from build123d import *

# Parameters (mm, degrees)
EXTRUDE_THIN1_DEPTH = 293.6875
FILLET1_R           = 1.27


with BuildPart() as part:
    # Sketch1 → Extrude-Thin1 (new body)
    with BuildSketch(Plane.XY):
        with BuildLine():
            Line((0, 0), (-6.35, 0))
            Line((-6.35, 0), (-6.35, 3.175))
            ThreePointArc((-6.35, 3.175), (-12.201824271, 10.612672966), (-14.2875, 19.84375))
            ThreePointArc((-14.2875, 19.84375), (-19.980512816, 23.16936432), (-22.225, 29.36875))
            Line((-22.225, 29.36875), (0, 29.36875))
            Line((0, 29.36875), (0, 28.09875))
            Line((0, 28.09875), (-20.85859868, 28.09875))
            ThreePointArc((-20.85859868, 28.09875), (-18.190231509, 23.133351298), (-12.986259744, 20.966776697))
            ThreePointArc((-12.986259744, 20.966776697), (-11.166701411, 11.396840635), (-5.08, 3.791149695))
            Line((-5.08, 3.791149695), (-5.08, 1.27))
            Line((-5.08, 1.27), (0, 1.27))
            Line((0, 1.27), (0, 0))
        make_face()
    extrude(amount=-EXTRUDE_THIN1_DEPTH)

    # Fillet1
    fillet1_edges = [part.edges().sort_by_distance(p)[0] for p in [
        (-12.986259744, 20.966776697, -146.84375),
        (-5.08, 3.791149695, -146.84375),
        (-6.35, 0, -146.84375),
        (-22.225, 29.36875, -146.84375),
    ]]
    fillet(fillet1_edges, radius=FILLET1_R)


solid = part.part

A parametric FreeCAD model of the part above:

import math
import FreeCAD as App
import Part
import Sketcher
from FreeCAD import Vector
Q = App.Units.Quantity


def edges_at(feature, points):
    """Names of the edges that pass closest to the given points."""
    edges = feature.Shape.Edges
    near = lambda p: min(range(len(edges)), key=lambda i: edges[i].distToShape(Part.Vertex(*p))[0])
    return sorted({f"Edge{near(p) + 1}" for p in points})

doc = App.newDocument("Part")
params = doc.addObject("Spreadsheet::Sheet", "Params")
for row, (alias, value) in enumerate([
    ("sketch1_width", "0.2 in"),
    ("sketch1_width2", "0.25 in"),
    ("sketch1_height", "0.05 in"),
    ("sketch1_width3", "0.875 in"),
    ("sketch1_height2", "0.125 in"),
    ("pad1_length", "11.5625 in"),
    ("fillet_radius", "0.05 in"),
], start=1):
    params.set(f"A{row}", alias)
    params.set(f"B{row}", "=" + value)
    params.setAlias(f"B{row}", alias)

body = doc.addObject("PartDesign::Body", "Body")

# Sketch on XY plane
sketch1 = body.newObject("Sketcher::SketchObject", "Sketch")
sketch1.AttachmentSupport = (doc.getObject("XY_Plane"), [""])
sketch1.MapMode = "FlatFace"
sketch1.addGeometry([
    Part.LineSegment(Vector(-6.3, 0, 0), Vector(0, 0, 0)),  # 0
    Part.LineSegment(Vector(0, 0, 0), Vector(0, 1.3, 0)),  # 1
    Part.LineSegment(Vector(0, 1.3, 0), Vector(-5.1, 1.3, 0)),  # 2
    Part.LineSegment(Vector(-5.1, 1.3, 0), Vector(-5.1, 3.8, 0)),  # 3
    Part.ArcOfCircle(Part.Circle(Vector(7.2, 19.8, 0), Vector(0, 0, 1), 20.2), math.radians(177), math.radians(233)),  # 4
    Part.ArcOfCircle(Part.Circle(Vector(-12.5, 29.4, 0), Vector(0, 0, 1), 8.4), math.radians(-171), math.radians(-93)),  # 5
    Part.LineSegment(Vector(-20.9, 28.1, 0), Vector(0, 28.1, 0)),  # 6
    Part.LineSegment(Vector(0, 28.1, 0), Vector(0, 29.4, 0)),  # 7
    Part.LineSegment(Vector(0, 29.4, 0), Vector(-22.2, 29.4, 0)),  # 8
    Part.ArcOfCircle(Part.Circle(Vector(-12.5, 29.4, 0), Vector(0, 0, 1), 9.7), math.radians(-180), math.radians(-100)),  # 9
    Part.ArcOfCircle(Part.Circle(Vector(7.2, 19.8, 0), Vector(0, 0, 1), 21.5), math.radians(180), math.radians(231)),  # 10
    Part.LineSegment(Vector(-6.3, 3.2, 0), Vector(-6.3, 0, 0)),  # 11
], False)
sketch1.addConstraint([
    Sketcher.Constraint("Coincident", 0, 2, 1, 1),
    Sketcher.Constraint("Coincident", 1, 2, 2, 1),
    Sketcher.Constraint("Coincident", 2, 2, 3, 1),
    Sketcher.Constraint("Coincident", 3, 2, 4, 2),
    Sketcher.Constraint("Coincident", 4, 1, 5, 2),
    Sketcher.Constraint("Coincident", 5, 1, 6, 1),
    Sketcher.Constraint("Coincident", 6, 2, 7, 1),
    Sketcher.Constraint("Coincident", 7, 2, 8, 1),
    Sketcher.Constraint("Coincident", 8, 2, 9, 1),
    Sketcher.Constraint("Coincident", 9, 2, 10, 1),
    Sketcher.Constraint("Coincident", 10, 2, 11, 1),
    Sketcher.Constraint("Coincident", 11, 2, 0, 1),
    Sketcher.Constraint("Horizontal", 0),
    Sketcher.Constraint("Vertical", 1),
    Sketcher.Constraint("Horizontal", 2),
    Sketcher.Constraint("Vertical", 3),
    Sketcher.Constraint("Horizontal", 6),
    Sketcher.Constraint("Vertical", 7),
    Sketcher.Constraint("Horizontal", 8),
    Sketcher.Constraint("Vertical", 11),
    Sketcher.Constraint("Coincident", 0, 2, -1, 1),
    Sketcher.Constraint("Coincident", 9, 3, 5, 3),
    Sketcher.Constraint("Coincident", 10, 3, 4, 3),
    Sketcher.Constraint("PointOnObject", 6, 2, -2),
    Sketcher.Constraint("Horizontal", 9, 3, 7, 2),
    Sketcher.Constraint("Horizontal", 10, 3, 9, 2),
    Sketcher.Constraint("Equal", 1, 7),
    Sketcher.Constraint("DistanceX", 2, 2, 2, 1, Q("0.2 in")),
    Sketcher.Constraint("DistanceX", 0, 1, 0, 2, Q("0.25 in")),
    Sketcher.Constraint("DistanceY", 1, 1, 1, 2, Q("0.05 in")),
    Sketcher.Constraint("DistanceX", 8, 2, 8, 1, Q("0.875 in")),
    Sketcher.Constraint("DistanceY", 11, 2, 11, 1, Q("0.125 in")),
    Sketcher.Constraint("DistanceY", -1, 1, 4, 3, Q("0.78125 in")),
    Sketcher.Constraint("DistanceY", -1, 1, 5, 3, Q("1.15625 in")),
    Sketcher.Constraint("DistanceX", 9, 2, -1, 1, Q("0.5625 in")),
    Sketcher.Constraint("Radius", 5, 8.41375),
    Sketcher.Constraint("Radius", 4, 20.200937),
])
sketch1.setExpression("Constraints[27]", "Params.sketch1_width")
sketch1.setExpression("Constraints[28]", "Params.sketch1_width2")
sketch1.setExpression("Constraints[29]", "Params.sketch1_height")
sketch1.setExpression("Constraints[30]", "Params.sketch1_width3")
sketch1.setExpression("Constraints[31]", "Params.sketch1_height2")
pad1 = body.newObject("PartDesign::Pad", "Pad")
pad1.Profile = sketch1
pad1.setExpression("Length", "Params.pad1_length")
pad1.Reversed = True
doc.recompute()

fillet = body.newObject("PartDesign::Fillet", "Fillet")
fillet.Base = (pad1, edges_at(pad1, [
    (-12.986, 20.967, -146.844),
    (-5.08, 3.791, -146.844),
    (-6.35, 0, -146.844),
    (-22.225, 29.369, -146.844),
]))
fillet.setExpression("Radius", "Params.fillet_radius")

doc.recompute()
